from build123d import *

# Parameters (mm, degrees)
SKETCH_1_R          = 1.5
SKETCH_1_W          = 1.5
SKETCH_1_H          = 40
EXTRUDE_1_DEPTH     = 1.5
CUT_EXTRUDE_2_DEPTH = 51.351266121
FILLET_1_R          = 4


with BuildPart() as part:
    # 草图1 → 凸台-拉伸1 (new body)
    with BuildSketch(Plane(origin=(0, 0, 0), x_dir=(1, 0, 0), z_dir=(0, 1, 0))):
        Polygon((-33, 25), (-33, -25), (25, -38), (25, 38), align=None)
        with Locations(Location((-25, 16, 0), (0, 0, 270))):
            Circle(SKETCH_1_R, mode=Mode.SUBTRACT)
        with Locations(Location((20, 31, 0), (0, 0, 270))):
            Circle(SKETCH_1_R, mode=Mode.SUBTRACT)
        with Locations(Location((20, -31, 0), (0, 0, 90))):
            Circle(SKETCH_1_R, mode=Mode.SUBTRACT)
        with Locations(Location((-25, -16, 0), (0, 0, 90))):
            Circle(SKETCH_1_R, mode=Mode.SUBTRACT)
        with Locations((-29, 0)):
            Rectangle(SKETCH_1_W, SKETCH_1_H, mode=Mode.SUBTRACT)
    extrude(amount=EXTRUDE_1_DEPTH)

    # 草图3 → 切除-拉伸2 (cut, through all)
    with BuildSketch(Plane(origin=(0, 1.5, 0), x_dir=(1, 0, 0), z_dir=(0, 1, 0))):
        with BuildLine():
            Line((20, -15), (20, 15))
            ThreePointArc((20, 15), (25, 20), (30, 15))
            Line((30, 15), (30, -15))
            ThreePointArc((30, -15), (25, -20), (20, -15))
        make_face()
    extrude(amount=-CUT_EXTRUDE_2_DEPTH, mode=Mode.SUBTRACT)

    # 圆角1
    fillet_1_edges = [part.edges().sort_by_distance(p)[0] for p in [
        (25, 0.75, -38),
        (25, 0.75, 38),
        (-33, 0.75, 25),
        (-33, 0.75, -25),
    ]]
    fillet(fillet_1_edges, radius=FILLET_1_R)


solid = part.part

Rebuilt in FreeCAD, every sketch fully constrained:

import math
import FreeCAD as App
import Part
import Sketcher


def edges_at(feature, points):
    """Names of the edges that pass closest to the given points."""
    edges = feature.Shape.Edges
    near = lambda p: min(range(len(edges)), key=lambda i: edges[i].distToShape(Part.Vertex(*p))[0])
    return sorted({f"Edge{near(p) + 1}" for p in points})

doc = App.newDocument("Part")
params = doc.addObject("Spreadsheet::Sheet", "Params")
for row, (alias, value) in enumerate([
    ("sketch1_diameter", "3 mm"),
    ("sketch1_height", "50 mm"),
    ("sketch1_height2", "76 mm"),
    ("sketch1_height3", "40 mm"),
    ("sketch1_width", "1.5 mm"),
    ("pad1_length", "1.5 mm"),
    ("sketch2_radius", "5 mm"),
    ("sketch2_height", "30 mm"),
    ("fillet_radius", "4 mm"),
], start=1):
    params.set(f"A{row}", alias)
    params.set(f"B{row}", "=" + value)
    params.setAlias(f"B{row}", alias)

body = doc.addObject("PartDesign::Body", "Body")

# Sketch on XZ plane
sketch1 = body.newObject("Sketcher::SketchObject", "Sketch")
sketch1.AttachmentSupport = (doc.getObject("XZ_Plane"), [""])
sketch1.MapMode = "FlatFace"
sketch1.addGeometry(Part.LineSegment(App.Vector(-33, -25, 0), App.Vector(-33, 25, 0)), False)
sketch1.addGeometry(Part.LineSegment(App.Vector(-33, 25, 0), App.Vector(25, 38, 0)), False)
sketch1.addGeometry(Part.LineSegment(App.Vector(25, 38, 0), App.Vector(25, -38, 0)), False)
sketch1.addGeometry(Part.LineSegment(App.Vector(25, -38, 0), App.Vector(-33, -25, 0)), False)
sketch1.addGeometry(Part.Circle(App.Vector(-25, 16, 0), App.Vector(0, 0, 1), 1.5), False)
sketch1.addGeometry(Part.Circle(App.Vector(20, 31, 0), App.Vector(0, 0, 1), 1.5), False)
sketch1.addGeometry(Part.LineSegment(App.Vector(-28.2, 20, 0), App.Vector(-29.8, 20, 0)), False)
sketch1.addGeometry(Part.LineSegment(App.Vector(-29.8, 20, 0), App.Vector(-29.8, -20, 0)), False)
sketch1.addGeometry(Part.LineSegment(App.Vector(-29.8, -20, 0), App.Vector(-28.2, -20, 0)), False)
sketch1.addGeometry(Part.LineSegment(App.Vector(-28.2, -20, 0), App.Vector(-28.2, 20, 0)), False)
sketch1.addGeometry(Part.Circle(App.Vector(-25, -16, 0), App.Vector(0, 0, 1), 1.5), False)
sketch1.addGeometry(Part.Circle(App.Vector(20, -31, 0), App.Vector(0, 0, 1), 1.5), False)
sketch1.addConstraint(Sketcher.Constraint("Coincident", 0, 2, 1, 1))
sketch1.addConstraint(Sketcher.Constraint("Coincident", 1, 2, 2, 1))
sketch1.addConstraint(Sketcher.Constraint("Coincident", 2, 2, 3, 1))
sketch1.addConstraint(Sketcher.Constraint("Coincident", 3, 2, 0, 1))
sketch1.addConstraint(Sketcher.Constraint("Coincident", 6, 2, 7, 1))
sketch1.addConstraint(Sketcher.Constraint("Coincident", 7, 2, 8, 1))
sketch1.addConstraint(Sketcher.Constraint("Coincident", 8, 2, 9, 1))
sketch1.addConstraint(Sketcher.Constraint("Coincident", 9, 2, 6, 1))
sketch1.addConstraint(Sketcher.Constraint("Vertical", 0))
sketch1.addConstraint(Sketcher.Constraint("Vertical", 2))
sketch1.addConstraint(Sketcher.Constraint("Horizontal", 6))
sketch1.addConstraint(Sketcher.Constraint("Vertical", 7))
sketch1.addConstraint(Sketcher.Constraint("Horizontal", 8))
sketch1.addConstraint(Sketcher.Constraint("Vertical", 9))
sketch1.addConstraint(Sketcher.Constraint("Equal", 4, 5))
sketch1.addConstraint(Sketcher.Constraint("Equal", 5, 10))
sketch1.addConstraint(Sketcher.Constraint("Equal", 10, 11))
sketch1.addConstraint(Sketcher.Constraint("Symmetric", 4, 3, 10, 3, -1))
sketch1.addConstraint(Sketcher.Constraint("Symmetric", 5, 3, 11, 3, -1))
sketch1.addConstraint(Sketcher.Constraint("Equal", 1, 3))
sketch1.addConstraint(Sketcher.Constraint("Diameter", 4, 3.0))
sketch1.addConstraint(Sketcher.Constraint("DistanceY", 0, 1, 0, 2, 50.0))
sketch1.addConstraint(Sketcher.Constraint("DistanceY", 2, 2, 2, 1, 76.0))
sketch1.addConstraint(Sketcher.Constraint("DistanceY", 7, 2, 7, 1, 40.0))
sketch1.addConstraint(Sketcher.Constraint("DistanceX", 6, 2, 6, 1, 1.5))
sketch1.addConstraint(Sketcher.Constraint("DistanceX", 4, 3, -1, 1, 25.0))
sketch1.addConstraint(Sketcher.Constraint("DistanceY", -1, 1, 4, 3, 16.0))
sketch1.addConstraint(Sketcher.Constraint("DistanceX", -1, 1, 5, 3, 20.0))
sketch1.addConstraint(Sketcher.Constraint("DistanceY", -1, 1, 5, 3, 31.0))
sketch1.addConstraint(Sketcher.Constraint("DistanceX", 0, 2, -1, 1, 33.0))
sketch1.addConstraint(Sketcher.Constraint("DistanceY", -1, 1, 0, 2, 25.0))
sketch1.addConstraint(Sketcher.Constraint("DistanceX", -1, 1, 1, 2, 25.0))
sketch1.addConstraint(Sketcher.Constraint("DistanceY", -1, 1, 6, 2, 20.0))
sketch1.addConstraint(Sketcher.Constraint("DistanceX", 6, 2, -1, 1, 29.75))
sketch1.setExpression("Constraints[20]", "Params.sketch1_diameter")
sketch1.setExpression("Constraints[21]", "Params.sketch1_height")
sketch1.setExpression("Constraints[22]", "Params.sketch1_height2")
sketch1.setExpression("Constraints[23]", "Params.sketch1_height3")
sketch1.setExpression("Constraints[24]", "Params.sketch1_width")
pad1 = body.newObject("PartDesign::Pad", "Pad")
pad1.Profile = sketch1
pad1.setExpression("Length", "Params.pad1_length")
pad1.Reversed = True

# Sketch on XZ plane
sketch2 = body.newObject("Sketcher::SketchObject", "Sketch001")
sketch2.AttachmentSupport = (doc.getObject("XZ_Plane"), [""])
sketch2.MapMode = "FlatFace"
sketch2.AttachmentOffset = App.Placement(App.Vector(0, 0, -1.5), App.Rotation())
sketch2.addGeometry(Part.LineSegment(App.Vector(20, -15, 0), App.Vector(20, 15, 0)), False)
sketch2.addGeometry(Part.ArcOfCircle(Part.Circle(App.Vector(25, 15, 0), App.Vector(0, 0, 1), 5), math.radians(0), math.radians(180)), False)
sketch2.addGeometry(Part.LineSegment(App.Vector(30, 15, 0), App.Vector(30, -15, 0)), False)
sketch2.addGeometry(Part.ArcOfCircle(Part.Circle(App.Vector(25, -15, 0), App.Vector(0, 0, 1), 5), math.radians(180), math.radians(360)), False)
sketch2.addConstraint(Sketcher.Constraint("Tangent", 0, 2, 1, 2))
sketch2.addConstraint(Sketcher.Constraint("Tangent", 1, 1, 2, 1))
sketch2.addConstraint(Sketcher.Constraint("Tangent", 2, 2, 3, 2))
sketch2.addConstraint(Sketcher.Constraint("Tangent", 3, 1, 0, 1))
sketch2.addConstraint(Sketcher.Constraint("Vertical", 0))
sketch2.addConstraint(Sketcher.Constraint("Vertical", 2))
sketch2.addConstraint(Sketcher.Constraint("Radius", 1, 5.0))
sketch2.addConstraint(Sketcher.Constraint("DistanceY", 0, 1, 0, 2, 30.0))
sketch2.addConstraint(Sketcher.Constraint("DistanceX", -1, 1, 1, 3, 25.0))
sketch2.addConstraint(Sketcher.Constraint("DistanceY", -1, 1, 1, 3, 15.0))
sketch2.setExpression("Constraints[6]", "Params.sketch2_radius")
sketch2.setExpression("Constraints[7]", "Params.sketch2_height")
pocket1 = body.newObject("PartDesign::Pocket", "Pocket")
pocket1.Profile = sketch2
pocket1.Type = "ThroughAll"
pocket1.Reversed = True
doc.recompute()

fillet = body.newObject("PartDesign::Fillet", "Fillet")
fillet.Base = (pocket1, edges_at(pocket1, [
    (25, 0.75, -38),
    (25, 0.75, 38),
    (-33, 0.75, 25),
    (-33, 0.75, -25),
]))
fillet.setExpression("Radius", "Params.fillet_radius")

doc.recompute()
